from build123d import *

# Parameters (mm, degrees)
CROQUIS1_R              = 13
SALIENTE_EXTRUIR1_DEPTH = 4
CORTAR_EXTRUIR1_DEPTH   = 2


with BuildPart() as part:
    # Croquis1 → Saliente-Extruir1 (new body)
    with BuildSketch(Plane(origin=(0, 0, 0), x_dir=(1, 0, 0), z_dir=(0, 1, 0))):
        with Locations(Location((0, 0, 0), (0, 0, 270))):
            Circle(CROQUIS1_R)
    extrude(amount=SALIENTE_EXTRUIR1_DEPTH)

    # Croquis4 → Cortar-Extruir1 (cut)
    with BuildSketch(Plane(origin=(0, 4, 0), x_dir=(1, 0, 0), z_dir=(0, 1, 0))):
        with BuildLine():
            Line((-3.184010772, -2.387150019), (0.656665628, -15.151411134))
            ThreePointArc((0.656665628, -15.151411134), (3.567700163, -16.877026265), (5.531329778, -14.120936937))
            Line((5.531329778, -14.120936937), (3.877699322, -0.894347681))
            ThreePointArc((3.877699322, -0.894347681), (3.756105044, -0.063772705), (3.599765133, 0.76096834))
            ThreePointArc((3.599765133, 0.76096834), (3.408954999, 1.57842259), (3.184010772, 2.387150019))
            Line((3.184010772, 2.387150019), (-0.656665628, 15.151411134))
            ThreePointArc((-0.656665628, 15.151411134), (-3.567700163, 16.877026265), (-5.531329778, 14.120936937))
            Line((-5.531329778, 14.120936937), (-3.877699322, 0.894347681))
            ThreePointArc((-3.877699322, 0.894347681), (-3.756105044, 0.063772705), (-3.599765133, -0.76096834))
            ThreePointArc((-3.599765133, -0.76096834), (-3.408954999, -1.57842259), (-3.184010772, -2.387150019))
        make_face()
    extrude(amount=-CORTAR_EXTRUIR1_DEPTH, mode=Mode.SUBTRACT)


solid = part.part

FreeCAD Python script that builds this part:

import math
import FreeCAD as App
import Part
import Sketcher

V = App.Vector
Q = App.Units.Quantity

doc = App.newDocument("Part")
params = doc.addObject("Spreadsheet::Sheet", "Params")
for row, (alias, value) in enumerate([
    ("sketch1_diameter", "26 mm"),
    ("pad1_length", "4 mm"),
    ("sketch2_radius", "19.999999 mm"),
    ("sketch2_radius2", "2.5 mm"),
    ("pocket1_length", "2 mm"),
], start=1):
    params.set(f"A{row}", alias)
    params.set(f"B{row}", "=" + value)
    params.setAlias(f"B{row}", alias)

body = doc.addObject("PartDesign::Body", "Body")

# Sketch on XZ plane
sketch1 = body.newObject("Sketcher::SketchObject", "Sketch")
sketch1.AttachmentSupport = (doc.getObject("XZ_Plane"), [""])
sketch1.MapMode = "FlatFace"
sketch1.addGeometry(Part.Circle(V(0, 0, 0), V(0, 0, 1), 13), False)
sketch1.addConstraint([
    Sketcher.Constraint("Coincident", 0, 3, -1, 1),
    Sketcher.Constraint("Diameter", 0, Q("26 mm")),
])
sketch1.setExpression("Constraints[1]", "Params.sketch1_diameter")
pad1 = body.newObject("PartDesign::Pad", "Pad")
pad1.Profile = sketch1
pad1.setExpression("Length", "Params.pad1_length")
pad1.Reversed = True

# Sketch on XZ plane
sketch2 = body.newObject("Sketcher::SketchObject", "Sketch001")
sketch2.AttachmentSupport = (doc.getObject("XZ_Plane"), [""])
sketch2.MapMode = "FlatFace"
sketch2.AttachmentOffset = App.Placement(V(0, 0, -4), App.Rotation())
sketch2.addGeometry([
    Part.LineSegment(V(-3.184011, 2.38715, 0), V(0.656666, 15.151411, 0)),  # 0
    Part.ArcOfCircle(Part.Circle(V(3.050642, 14.43108, 0), V(0, 0, 1), 2.5), math.radians(-7.126325), math.radians(163.253829)),  # 1
    Part.LineSegment(V(5.53133, 14.120937, 0), V(3.877699, 0.894348, 0)),  # 2
    Part.ArcOfCircle(Part.Circle(V(-15.967801, 3.375495, 0), V(0, 0, 1), 19.999999), math.radians(-11.936248), math.radians(-7.126325)),  # 3
    Part.ArcOfCircle(Part.Circle(V(-15.967801, 3.375496, 0), V(0, 0, 1), 20), math.radians(-16.746171), math.radians(-11.936248)),  # 4
    Part.LineSegment(V(3.184011, -2.38715, 0), V(-0.656666, -15.151411, 0)),  # 5
    Part.ArcOfCircle(Part.Circle(V(-3.050642, -14.43108, 0), V(0, 0, 1), 2.5), math.radians(172.873675), math.radians(343.253829)),  # 6
    Part.LineSegment(V(-5.53133, -14.120937, 0), V(-3.877699, -0.894348, 0)),  # 7
    Part.ArcOfCircle(Part.Circle(V(15.967801, -3.375495, 0), V(0, 0, 1), 19.999999), math.radians(168.063752), math.radians(172.873675)),  # 8
    Part.ArcOfCircle(Part.Circle(V(15.967801, -3.375496, 0), V(0, 0, 1), 20), math.radians(163.253829), math.radians(168.063752)),  # 9
], False)
sketch2.addConstraint([
    Sketcher.Constraint("Tangent", 0, 2, 1, 2),
    Sketcher.Constraint("Tangent", 1, 1, 2, 1),
    Sketcher.Constraint("Tangent", 2, 2, 3, 2),
    Sketcher.Constraint("Tangent", 3, 1, 4, 2),
    Sketcher.Constraint("Tangent", 4, 1, 5, 1),
    Sketcher.Constraint("Tangent", 5, 2, 6, 2),
    Sketcher.Constraint("Tangent", 6, 1, 7, 1),
    Sketcher.Constraint("Tangent", 7, 2, 8, 2),
    Sketcher.Constraint("Tangent", 8, 1, 9, 2),
    Sketcher.Constraint("Tangent", 9, 1, 0, 1),
    Sketcher.Constraint("Equal", 3, 4),
    Sketcher.Constraint("Equal", 1, 6),
    Sketcher.Constraint("Equal", 4, 8),
    Sketcher.Constraint("Equal", 8, 9),
    Sketcher.Constraint("Symmetric", 1, 3, 6, 3, -1, 1),
    Sketcher.Constraint("Symmetric", 3, 3, 8, 3, -1, 1),
    Sketcher.Constraint("Equal", 0, 2),
    Sketcher.Constraint("Radius", 3, Q("19.999999 mm")),
    Sketcher.Constraint("Radius", 1, Q("2.5 mm")),
    Sketcher.Constraint("DistanceX", 3, 3, -1, 1, Q("15.967801 mm")),
    Sketcher.Constraint("DistanceX", -1, 1, 2, 2, Q("3.877699 mm")),
    Sketcher.Constraint("DistanceY", 4, 1, 9, 1, Q("4.7743 mm")),
    Sketcher.Constraint("DistanceY", 3, 1, -1, 1, Q("0.760968 mm")),
    Sketcher.Constraint("DistanceY", -1, 1, 8, 1, Q("0.760968 mm")),
])
sketch2.setExpression("Constraints[17]", "Params.sketch2_radius")
sketch2.setExpression("Constraints[18]", "Params.sketch2_radius2")
pocket1 = body.newObject("PartDesign::Pocket", "Pocket")
pocket1.Profile = sketch2
pocket1.setExpression("Length", "Params.pocket1_length")
pocket1.Reversed = True

doc.recompute()
